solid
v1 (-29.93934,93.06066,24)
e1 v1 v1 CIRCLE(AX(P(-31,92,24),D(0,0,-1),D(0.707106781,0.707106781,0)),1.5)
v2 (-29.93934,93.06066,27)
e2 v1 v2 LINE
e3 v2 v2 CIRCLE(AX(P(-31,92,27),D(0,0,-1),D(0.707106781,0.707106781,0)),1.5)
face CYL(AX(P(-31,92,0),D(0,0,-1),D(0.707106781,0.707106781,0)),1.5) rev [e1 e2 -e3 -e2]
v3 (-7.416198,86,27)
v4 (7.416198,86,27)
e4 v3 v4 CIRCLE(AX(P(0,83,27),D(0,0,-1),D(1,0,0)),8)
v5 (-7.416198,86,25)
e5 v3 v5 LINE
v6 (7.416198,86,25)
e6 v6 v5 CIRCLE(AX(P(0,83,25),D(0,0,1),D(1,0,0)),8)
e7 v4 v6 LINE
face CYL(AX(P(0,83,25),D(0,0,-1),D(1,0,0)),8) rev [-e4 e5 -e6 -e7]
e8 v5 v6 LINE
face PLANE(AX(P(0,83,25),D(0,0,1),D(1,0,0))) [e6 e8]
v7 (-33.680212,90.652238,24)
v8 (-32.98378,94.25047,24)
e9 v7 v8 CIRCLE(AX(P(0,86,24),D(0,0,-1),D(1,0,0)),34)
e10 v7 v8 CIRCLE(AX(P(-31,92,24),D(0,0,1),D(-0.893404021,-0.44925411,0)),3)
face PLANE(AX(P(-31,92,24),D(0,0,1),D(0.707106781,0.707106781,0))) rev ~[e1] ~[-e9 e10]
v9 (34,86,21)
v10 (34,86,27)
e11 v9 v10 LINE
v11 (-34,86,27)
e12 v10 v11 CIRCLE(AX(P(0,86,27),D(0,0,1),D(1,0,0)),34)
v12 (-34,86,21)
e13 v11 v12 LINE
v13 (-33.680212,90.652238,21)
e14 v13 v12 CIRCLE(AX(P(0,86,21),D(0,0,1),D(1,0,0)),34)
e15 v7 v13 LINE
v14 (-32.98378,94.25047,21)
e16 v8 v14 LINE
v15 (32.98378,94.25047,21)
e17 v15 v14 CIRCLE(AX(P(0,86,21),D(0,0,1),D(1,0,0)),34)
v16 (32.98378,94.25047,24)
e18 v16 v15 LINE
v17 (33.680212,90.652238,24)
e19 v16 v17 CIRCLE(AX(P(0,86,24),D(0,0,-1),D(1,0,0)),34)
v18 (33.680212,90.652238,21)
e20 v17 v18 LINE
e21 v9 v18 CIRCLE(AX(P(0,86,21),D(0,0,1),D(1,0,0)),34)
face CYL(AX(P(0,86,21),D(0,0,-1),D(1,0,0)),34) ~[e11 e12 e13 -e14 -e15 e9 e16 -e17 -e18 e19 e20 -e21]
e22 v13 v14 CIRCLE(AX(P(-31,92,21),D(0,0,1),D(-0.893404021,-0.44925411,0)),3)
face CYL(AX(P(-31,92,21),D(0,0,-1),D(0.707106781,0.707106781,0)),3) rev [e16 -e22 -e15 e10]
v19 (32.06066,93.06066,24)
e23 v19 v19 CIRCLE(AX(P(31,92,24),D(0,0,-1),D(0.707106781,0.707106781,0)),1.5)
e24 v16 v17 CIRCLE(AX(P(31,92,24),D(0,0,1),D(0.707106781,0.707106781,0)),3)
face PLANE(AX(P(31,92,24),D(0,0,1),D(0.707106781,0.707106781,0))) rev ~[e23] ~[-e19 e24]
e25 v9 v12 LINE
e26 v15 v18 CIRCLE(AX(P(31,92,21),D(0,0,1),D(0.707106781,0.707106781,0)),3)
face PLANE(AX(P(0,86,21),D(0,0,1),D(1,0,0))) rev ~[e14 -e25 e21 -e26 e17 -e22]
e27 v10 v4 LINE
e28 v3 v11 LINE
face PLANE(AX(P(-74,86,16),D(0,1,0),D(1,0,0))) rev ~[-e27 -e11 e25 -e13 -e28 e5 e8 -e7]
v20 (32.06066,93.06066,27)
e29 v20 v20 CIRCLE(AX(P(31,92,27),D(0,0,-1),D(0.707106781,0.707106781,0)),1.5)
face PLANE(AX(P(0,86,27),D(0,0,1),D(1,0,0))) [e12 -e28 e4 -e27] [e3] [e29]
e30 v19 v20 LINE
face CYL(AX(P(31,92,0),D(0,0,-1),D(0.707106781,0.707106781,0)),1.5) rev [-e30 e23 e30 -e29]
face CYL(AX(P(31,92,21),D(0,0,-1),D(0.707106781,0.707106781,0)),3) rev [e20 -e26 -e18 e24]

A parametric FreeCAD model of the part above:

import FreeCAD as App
import Part
import Sketcher

doc = App.newDocument("Part")
body = doc.addObject("PartDesign::Body", "Body")

# Sketch on XY plane
sketch1 = body.newObject("Sketcher::SketchObject", "Sketch")
sketch1.AttachmentSupport = (doc.getObject("XY_Plane"), [""])
sketch1.MapMode = "FlatFace"
sketch1.AttachmentOffset = App.Placement(App.Vector(0, 0, 25), App.Rotation())
sketch1.addGeometry(Part.Circle(App.Vector(0, 83, 0), App.Vector(0, 0, 1), 8), False)
sketch1.addConstraint(Sketcher.Constraint("PointOnObject", 0, 3, -2))
sketch1.addConstraint(Sketcher.Constraint("Diameter", 0, 16.0))
sketch1.addConstraint(Sketcher.Constraint("DistanceY", -1, 1, 0, 3, 83.0))
pad1 = body.newObject("PartDesign::Pad", "Pad")
pad1.Profile = sketch1
pad1.Length = 6
body2 = doc.addObject("PartDesign::Body", "Body001")

# Sketch on XY plane
sketch2 = body2.newObject("Sketcher::SketchObject", "Sketch001")
sketch2.AttachmentSupport = (doc.getObject("XY_Plane001"), [""])
sketch2.MapMode = "FlatFace"
sketch2.addGeometry(Part.Circle(App.Vector(0, 0, 0), App.Vector(0, 0, 1), 3), False)
sketch2.addConstraint(Sketcher.Constraint("Coincident", 0, 3, -1, 1))
sketch2.addConstraint(Sketcher.Constraint("Diameter", 0, 6.0))
pad2 = body2.newObject("PartDesign::Pad", "Pad001")
pad2.Profile = sketch2
pad2.Length = 3
body3 = doc.addObject("PartDesign::Body", "Body002")
doc.recompute()

body2.Placement = App.Placement(App.Vector(-31, 92, 21), App.Rotation(App.Vector(0, 0, 1), 45))
boolean = body3.newObject("PartDesign::Boolean", "Boolean")
boolean.Type = "Fuse"
boolean.addObjects([body2])
body4 = doc.addObject("PartDesign::Body", "Body003")

# Sketch on XY plane
sketch3 = body4.newObject("Sketcher::SketchObject", "Sketch002")
sketch3.AttachmentSupport = (doc.getObject("XY_Plane003"), [""])
sketch3.MapMode = "FlatFace"
sketch3.addGeometry(Part.Circle(App.Vector(0, 0, 0), App.Vector(0, 0, 1), 3), False)
sketch3.addConstraint(Sketcher.Constraint("Coincident", 0, 3, -1, 1))
sketch3.addConstraint(Sketcher.Constraint("Diameter", 0, 6.0))
pad3 = body4.newObject("PartDesign::Pad", "Pad002")
pad3.Profile = sketch3
pad3.Length = 3
body5 = doc.addObject("PartDesign::Body", "Body004")
doc.recompute()

body4.Placement = App.Placement(App.Vector(31, 110, 0), App.Rotation(App.Vector(0, 0, 1), 45))
boolean2 = body5.newObject("PartDesign::Boolean", "Boolean001")
boolean2.Type = "Fuse"
boolean2.addObjects([body4])
body6 = doc.addObject("PartDesign::Body", "Body005")

# Sketch on XY plane
sketch4 = body6.newObject("Sketcher::SketchObject", "Sketch003")
sketch4.AttachmentSupport = (doc.getObject("XY_Plane005"), [""])
sketch4.MapMode = "FlatFace"
sketch4.addGeometry(Part.Circle(App.Vector(0, 0, 0), App.Vector(0, 0, 1), 3), False)
sketch4.addConstraint(Sketcher.Constraint("Coincident", 0, 3, -1, 1))
sketch4.addConstraint(Sketcher.Constraint("Diameter", 0, 6.0))
pad4 = body6.newObject("PartDesign::Pad", "Pad003")
pad4.Profile = sketch4
pad4.Length = 3
body7 = doc.addObject("PartDesign::Body", "Body006")
doc.recompute()

body6.Placement = App.Placement(App.Vector(31, 92, 21), App.Rotation(App.Vector(0, 0, 1), 45))
boolean3 = body7.newObject("PartDesign::Boolean", "Boolean002")
boolean3.Type = "Fuse"
boolean3.addObjects([body6])
body8 = doc.addObject("PartDesign::Body", "Body007")

# Sketch on XY plane
sketch5 = body8.newObject("Sketcher::SketchObject", "Sketch004")
sketch5.AttachmentSupport = (doc.getObject("XY_Plane007"), [""])
sketch5.MapMode = "FlatFace"
sketch5.addGeometry(Part.Circle(App.Vector(0, 0, 0), App.Vector(0, 0, 1), 3), False)
sketch5.addConstraint(Sketcher.Constraint("Coincident", 0, 3, -1, 1))
sketch5.addConstraint(Sketcher.Constraint("Diameter", 0, 6.0))
pad5 = body8.newObject("PartDesign::Pad", "Pad004")
pad5.Profile = sketch5
pad5.Length = 3
body9 = doc.addObject("PartDesign::Body", "Body008")
body9.AllowCompound = True
doc.recompute()

body8.Placement = App.Placement(App.Vector(-31, 110, 0), App.Rotation(App.Vector(0, 0, 1), 45))
boolean4 = body9.newObject("PartDesign::Boolean", "Boolean003")
boolean4.Type = "Fuse"
boolean4.addObjects([body8])
doc.recompute()

boolean5 = body9.newObject("PartDesign::Boolean", "Boolean004")
boolean5.Type = "Fuse"
boolean5.addObjects([body3])
doc.recompute()

boolean6 = body9.newObject("PartDesign::Boolean", "Boolean005")
boolean6.Type = "Fuse"
boolean6.addObjects([body5])
doc.recompute()

boolean7 = body9.newObject("PartDesign::Boolean", "Boolean006")
boolean7.Type = "Fuse"
boolean7.addObjects([body7])
body10 = doc.addObject("PartDesign::Body", "Body009")

# Sketch on XY plane
sketch6 = body10.newObject("Sketcher::SketchObject", "Sketch005")
sketch6.AttachmentSupport = (doc.getObject("XY_Plane009"), [""])
sketch6.MapMode = "FlatFace"
sketch6.addGeometry(Part.Circle(App.Vector(0, 0, 0), App.Vector(0, 0, 1), 1.5), False)
sketch6.addConstraint(Sketcher.Constraint("Coincident", 0, 3, -1, 1))
sketch6.addConstraint(Sketcher.Constraint("Diameter", 0, 3.0))
pad6 = body10.newObject("PartDesign::Pad", "Pad005")
pad6.Profile = sketch6
pad6.Length = 50
body11 = doc.addObject("PartDesign::Body", "Body010")
doc.recompute()

body10.Placement = App.Placement(App.Vector(-31, 92, 0), App.Rotation(App.Vector(0, 0, 1), 45))
boolean8 = body11.newObject("PartDesign::Boolean", "Boolean007")
boolean8.Type = "Fuse"
boolean8.addObjects([body10])
body12 = doc.addObject("PartDesign::Body", "Body011")

# Sketch on XY plane
sketch7 = body12.newObject("Sketcher::SketchObject", "Sketch006")
sketch7.AttachmentSupport = (doc.getObject("XY_Plane011"), [""])
sketch7.MapMode = "FlatFace"
sketch7.addGeometry(Part.Circle(App.Vector(0, 0, 0), App.Vector(0, 0, 1), 1.5), False)
sketch7.addConstraint(Sketcher.Constraint("Coincident", 0, 3, -1, 1))
sketch7.addConstraint(Sketcher.Constraint("Diameter", 0, 3.0))
pad7 = body12.newObject("PartDesign::Pad", "Pad006")
pad7.Profile = sketch7
pad7.Length = 50
body13 = doc.addObject("PartDesign::Body", "Body012")
doc.recompute()

body12.Placement = App.Placement(App.Vector(31, 110, 0), App.Rotation(App.Vector(0, 0, 1), 45))
boolean9 = body13.newObject("PartDesign::Boolean", "Boolean008")
boolean9.Type = "Fuse"
boolean9.addObjects([body12])
body14 = doc.addObject("PartDesign::Body", "Body013")

# Sketch on XY plane
sketch8 = body14.newObject("Sketcher::SketchObject", "Sketch007")
sketch8.AttachmentSupport = (doc.getObject("XY_Plane013"), [""])
sketch8.MapMode = "FlatFace"
sketch8.addGeometry(Part.Circle(App.Vector(0, 0, 0), App.Vector(0, 0, 1), 1.5), False)
sketch8.addConstraint(Sketcher.Constraint("Coincident", 0, 3, -1, 1))
sketch8.addConstraint(Sketcher.Constraint("Diameter", 0, 3.0))
pad8 = body14.newObject("PartDesign::Pad", "Pad007")
pad8.Profile = sketch8
pad8.Length = 50
body15 = doc.addObject("PartDesign::Body", "Body014")
doc.recompute()

body14.Placement = App.Placement(App.Vector(31, 92, 0), App.Rotation(App.Vector(0, 0, 1), 45))
boolean10 = body15.newObject("PartDesign::Boolean", "Boolean009")
boolean10.Type = "Fuse"
boolean10.addObjects([body14])
body16 = doc.addObject("PartDesign::Body", "Body015")

# Sketch on XY plane
sketch9 = body16.newObject("Sketcher::SketchObject", "Sketch008")
sketch9.AttachmentSupport = (doc.getObject("XY_Plane015"), [""])
sketch9.MapMode = "FlatFace"
sketch9.addGeometry(Part.Circle(App.Vector(0, 0, 0), App.Vector(0, 0, 1), 1.5), False)
sketch9.addConstraint(Sketcher.Constraint("Coincident", 0, 3, -1, 1))
sketch9.addConstraint(Sketcher.Constraint("Diameter", 0, 3.0))
pad9 = body16.newObject("PartDesign::Pad", "Pad008")
pad9.Profile = sketch9
pad9.Length = 50
body17 = doc.addObject("PartDesign::Body", "Body016")
body17.AllowCompound = True
doc.recompute()

body16.Placement = App.Placement(App.Vector(-31, 110, 0), App.Rotation(App.Vector(0, 0, 1), 45))
boolean11 = body17.newObject("PartDesign::Boolean", "Boolean010")
boolean11.Type = "Fuse"
boolean11.addObjects([body16])
doc.recompute()

boolean12 = body17.newObject("PartDesign::Boolean", "Boolean011")
boolean12.Type = "Fuse"
boolean12.addObjects([body11])
doc.recompute()

boolean13 = body17.newObject("PartDesign::Boolean", "Boolean012")
boolean13.Type = "Fuse"
boolean13.addObjects([body13])
doc.recompute()

boolean14 = body17.newObject("PartDesign::Boolean", "Boolean013")
boolean14.Type = "Fuse"
boolean14.addObjects([body15])
body18 = doc.addObject("PartDesign::Body", "Body017")

# Sketch on XY plane
sketch10 = body18.newObject("Sketcher::SketchObject", "Sketch009")
sketch10.AttachmentSupport = (doc.getObject("XY_Plane017"), [""])
sketch10.MapMode = "FlatFace"
sketch10.AttachmentOffset = App.Placement(App.Vector(0, 0, 16), App.Rotation())
sketch10.addGeometry(Part.LineSegment(App.Vector(-74, 86, 0), App.Vector(-74, 46, 0)), False)
sketch10.addGeometry(Part.LineSegment(App.Vector(-74, 46, 0), App.Vector(74, 46, 0)), False)
sketch10.addGeometry(Part.LineSegment(App.Vector(74, 46, 0), App.Vector(74, 86, 0)), False)
sketch10.addGeometry(Part.LineSegment(App.Vector(74, 86, 0), App.Vector(-74, 86, 0)), False)
sketch10.addConstraint(Sketcher.Constraint("Coincident", 0, 2, 1, 1))
sketch10.addConstraint(Sketcher.Constraint("Coincident", 1, 2, 2, 1))
sketch10.addConstraint(Sketcher.Constraint("Coincident", 2, 2, 3, 1))
sketch10.addConstraint(Sketcher.Constraint("Coincident", 3, 2, 0, 1))
sketch10.addConstraint(Sketcher.Constraint("Vertical", 0))
sketch10.addConstraint(Sketcher.Constraint("Horizontal", 1))
sketch10.addConstraint(Sketcher.Constraint("Vertical", 2))
sketch10.addConstraint(Sketcher.Constraint("Horizontal", 3))
sketch10.addConstraint(Sketcher.Constraint("DistanceX", 1, 1, 1, 2, 148.0))
sketch10.addConstraint(Sketcher.Constraint("DistanceY", 0, 2, 0, 1, 40.0))
sketch10.addConstraint(Sketcher.Constraint("DistanceX", 0, 2, -1, 1, 74.0))
sketch10.addConstraint(Sketcher.Constraint("DistanceY", -1, 1, 0, 2, 46.0))
pad10 = body18.newObject("PartDesign::Pad", "Pad009")
pad10.Profile = sketch10
pad10.Length = 40
body19 = doc.addObject("PartDesign::Body", "Body018")

# Sketch on XY plane
sketch11 = body19.newObject("Sketcher::SketchObject", "Sketch010")
sketch11.AttachmentSupport = (doc.getObject("XY_Plane018"), [""])
sketch11.MapMode = "FlatFace"
sketch11.AttachmentOffset = App.Placement(App.Vector(0, 0, 21), App.Rotation())
sketch11.addGeometry(Part.Circle(App.Vector(0, 86, 0), App.Vector(0, 0, 1), 34), False)
sketch11.addConstraint(Sketcher.Constraint("PointOnObject", 0, 3, -2))
sketch11.addConstraint(Sketcher.Constraint("Diameter", 0, 68.0))
sketch11.addConstraint(Sketcher.Constraint("DistanceY", -1, 1, 0, 3, 86.0))
pad11 = body19.newObject("PartDesign::Pad", "Pad010")
pad11.Profile = sketch11
pad11.Length = 6
doc.recompute()

boolean15 = body19.newObject("PartDesign::Boolean", "Boolean014")
boolean15.Type = "Cut"
boolean15.addObjects([body18])
doc.recompute()

boolean16 = body19.newObject("PartDesign::Boolean", "Boolean015")
boolean16.Type = "Cut"
boolean16.addObjects([body17])
doc.recompute()

boolean17 = body19.newObject("PartDesign::Boolean", "Boolean016")
boolean17.Type = "Cut"
boolean17.addObjects([body9])
doc.recompute()

boolean18 = body19.newObject("PartDesign::Boolean", "Boolean017")
boolean18.Type = "Cut"
boolean18.addObjects([body])

doc.recompute()
